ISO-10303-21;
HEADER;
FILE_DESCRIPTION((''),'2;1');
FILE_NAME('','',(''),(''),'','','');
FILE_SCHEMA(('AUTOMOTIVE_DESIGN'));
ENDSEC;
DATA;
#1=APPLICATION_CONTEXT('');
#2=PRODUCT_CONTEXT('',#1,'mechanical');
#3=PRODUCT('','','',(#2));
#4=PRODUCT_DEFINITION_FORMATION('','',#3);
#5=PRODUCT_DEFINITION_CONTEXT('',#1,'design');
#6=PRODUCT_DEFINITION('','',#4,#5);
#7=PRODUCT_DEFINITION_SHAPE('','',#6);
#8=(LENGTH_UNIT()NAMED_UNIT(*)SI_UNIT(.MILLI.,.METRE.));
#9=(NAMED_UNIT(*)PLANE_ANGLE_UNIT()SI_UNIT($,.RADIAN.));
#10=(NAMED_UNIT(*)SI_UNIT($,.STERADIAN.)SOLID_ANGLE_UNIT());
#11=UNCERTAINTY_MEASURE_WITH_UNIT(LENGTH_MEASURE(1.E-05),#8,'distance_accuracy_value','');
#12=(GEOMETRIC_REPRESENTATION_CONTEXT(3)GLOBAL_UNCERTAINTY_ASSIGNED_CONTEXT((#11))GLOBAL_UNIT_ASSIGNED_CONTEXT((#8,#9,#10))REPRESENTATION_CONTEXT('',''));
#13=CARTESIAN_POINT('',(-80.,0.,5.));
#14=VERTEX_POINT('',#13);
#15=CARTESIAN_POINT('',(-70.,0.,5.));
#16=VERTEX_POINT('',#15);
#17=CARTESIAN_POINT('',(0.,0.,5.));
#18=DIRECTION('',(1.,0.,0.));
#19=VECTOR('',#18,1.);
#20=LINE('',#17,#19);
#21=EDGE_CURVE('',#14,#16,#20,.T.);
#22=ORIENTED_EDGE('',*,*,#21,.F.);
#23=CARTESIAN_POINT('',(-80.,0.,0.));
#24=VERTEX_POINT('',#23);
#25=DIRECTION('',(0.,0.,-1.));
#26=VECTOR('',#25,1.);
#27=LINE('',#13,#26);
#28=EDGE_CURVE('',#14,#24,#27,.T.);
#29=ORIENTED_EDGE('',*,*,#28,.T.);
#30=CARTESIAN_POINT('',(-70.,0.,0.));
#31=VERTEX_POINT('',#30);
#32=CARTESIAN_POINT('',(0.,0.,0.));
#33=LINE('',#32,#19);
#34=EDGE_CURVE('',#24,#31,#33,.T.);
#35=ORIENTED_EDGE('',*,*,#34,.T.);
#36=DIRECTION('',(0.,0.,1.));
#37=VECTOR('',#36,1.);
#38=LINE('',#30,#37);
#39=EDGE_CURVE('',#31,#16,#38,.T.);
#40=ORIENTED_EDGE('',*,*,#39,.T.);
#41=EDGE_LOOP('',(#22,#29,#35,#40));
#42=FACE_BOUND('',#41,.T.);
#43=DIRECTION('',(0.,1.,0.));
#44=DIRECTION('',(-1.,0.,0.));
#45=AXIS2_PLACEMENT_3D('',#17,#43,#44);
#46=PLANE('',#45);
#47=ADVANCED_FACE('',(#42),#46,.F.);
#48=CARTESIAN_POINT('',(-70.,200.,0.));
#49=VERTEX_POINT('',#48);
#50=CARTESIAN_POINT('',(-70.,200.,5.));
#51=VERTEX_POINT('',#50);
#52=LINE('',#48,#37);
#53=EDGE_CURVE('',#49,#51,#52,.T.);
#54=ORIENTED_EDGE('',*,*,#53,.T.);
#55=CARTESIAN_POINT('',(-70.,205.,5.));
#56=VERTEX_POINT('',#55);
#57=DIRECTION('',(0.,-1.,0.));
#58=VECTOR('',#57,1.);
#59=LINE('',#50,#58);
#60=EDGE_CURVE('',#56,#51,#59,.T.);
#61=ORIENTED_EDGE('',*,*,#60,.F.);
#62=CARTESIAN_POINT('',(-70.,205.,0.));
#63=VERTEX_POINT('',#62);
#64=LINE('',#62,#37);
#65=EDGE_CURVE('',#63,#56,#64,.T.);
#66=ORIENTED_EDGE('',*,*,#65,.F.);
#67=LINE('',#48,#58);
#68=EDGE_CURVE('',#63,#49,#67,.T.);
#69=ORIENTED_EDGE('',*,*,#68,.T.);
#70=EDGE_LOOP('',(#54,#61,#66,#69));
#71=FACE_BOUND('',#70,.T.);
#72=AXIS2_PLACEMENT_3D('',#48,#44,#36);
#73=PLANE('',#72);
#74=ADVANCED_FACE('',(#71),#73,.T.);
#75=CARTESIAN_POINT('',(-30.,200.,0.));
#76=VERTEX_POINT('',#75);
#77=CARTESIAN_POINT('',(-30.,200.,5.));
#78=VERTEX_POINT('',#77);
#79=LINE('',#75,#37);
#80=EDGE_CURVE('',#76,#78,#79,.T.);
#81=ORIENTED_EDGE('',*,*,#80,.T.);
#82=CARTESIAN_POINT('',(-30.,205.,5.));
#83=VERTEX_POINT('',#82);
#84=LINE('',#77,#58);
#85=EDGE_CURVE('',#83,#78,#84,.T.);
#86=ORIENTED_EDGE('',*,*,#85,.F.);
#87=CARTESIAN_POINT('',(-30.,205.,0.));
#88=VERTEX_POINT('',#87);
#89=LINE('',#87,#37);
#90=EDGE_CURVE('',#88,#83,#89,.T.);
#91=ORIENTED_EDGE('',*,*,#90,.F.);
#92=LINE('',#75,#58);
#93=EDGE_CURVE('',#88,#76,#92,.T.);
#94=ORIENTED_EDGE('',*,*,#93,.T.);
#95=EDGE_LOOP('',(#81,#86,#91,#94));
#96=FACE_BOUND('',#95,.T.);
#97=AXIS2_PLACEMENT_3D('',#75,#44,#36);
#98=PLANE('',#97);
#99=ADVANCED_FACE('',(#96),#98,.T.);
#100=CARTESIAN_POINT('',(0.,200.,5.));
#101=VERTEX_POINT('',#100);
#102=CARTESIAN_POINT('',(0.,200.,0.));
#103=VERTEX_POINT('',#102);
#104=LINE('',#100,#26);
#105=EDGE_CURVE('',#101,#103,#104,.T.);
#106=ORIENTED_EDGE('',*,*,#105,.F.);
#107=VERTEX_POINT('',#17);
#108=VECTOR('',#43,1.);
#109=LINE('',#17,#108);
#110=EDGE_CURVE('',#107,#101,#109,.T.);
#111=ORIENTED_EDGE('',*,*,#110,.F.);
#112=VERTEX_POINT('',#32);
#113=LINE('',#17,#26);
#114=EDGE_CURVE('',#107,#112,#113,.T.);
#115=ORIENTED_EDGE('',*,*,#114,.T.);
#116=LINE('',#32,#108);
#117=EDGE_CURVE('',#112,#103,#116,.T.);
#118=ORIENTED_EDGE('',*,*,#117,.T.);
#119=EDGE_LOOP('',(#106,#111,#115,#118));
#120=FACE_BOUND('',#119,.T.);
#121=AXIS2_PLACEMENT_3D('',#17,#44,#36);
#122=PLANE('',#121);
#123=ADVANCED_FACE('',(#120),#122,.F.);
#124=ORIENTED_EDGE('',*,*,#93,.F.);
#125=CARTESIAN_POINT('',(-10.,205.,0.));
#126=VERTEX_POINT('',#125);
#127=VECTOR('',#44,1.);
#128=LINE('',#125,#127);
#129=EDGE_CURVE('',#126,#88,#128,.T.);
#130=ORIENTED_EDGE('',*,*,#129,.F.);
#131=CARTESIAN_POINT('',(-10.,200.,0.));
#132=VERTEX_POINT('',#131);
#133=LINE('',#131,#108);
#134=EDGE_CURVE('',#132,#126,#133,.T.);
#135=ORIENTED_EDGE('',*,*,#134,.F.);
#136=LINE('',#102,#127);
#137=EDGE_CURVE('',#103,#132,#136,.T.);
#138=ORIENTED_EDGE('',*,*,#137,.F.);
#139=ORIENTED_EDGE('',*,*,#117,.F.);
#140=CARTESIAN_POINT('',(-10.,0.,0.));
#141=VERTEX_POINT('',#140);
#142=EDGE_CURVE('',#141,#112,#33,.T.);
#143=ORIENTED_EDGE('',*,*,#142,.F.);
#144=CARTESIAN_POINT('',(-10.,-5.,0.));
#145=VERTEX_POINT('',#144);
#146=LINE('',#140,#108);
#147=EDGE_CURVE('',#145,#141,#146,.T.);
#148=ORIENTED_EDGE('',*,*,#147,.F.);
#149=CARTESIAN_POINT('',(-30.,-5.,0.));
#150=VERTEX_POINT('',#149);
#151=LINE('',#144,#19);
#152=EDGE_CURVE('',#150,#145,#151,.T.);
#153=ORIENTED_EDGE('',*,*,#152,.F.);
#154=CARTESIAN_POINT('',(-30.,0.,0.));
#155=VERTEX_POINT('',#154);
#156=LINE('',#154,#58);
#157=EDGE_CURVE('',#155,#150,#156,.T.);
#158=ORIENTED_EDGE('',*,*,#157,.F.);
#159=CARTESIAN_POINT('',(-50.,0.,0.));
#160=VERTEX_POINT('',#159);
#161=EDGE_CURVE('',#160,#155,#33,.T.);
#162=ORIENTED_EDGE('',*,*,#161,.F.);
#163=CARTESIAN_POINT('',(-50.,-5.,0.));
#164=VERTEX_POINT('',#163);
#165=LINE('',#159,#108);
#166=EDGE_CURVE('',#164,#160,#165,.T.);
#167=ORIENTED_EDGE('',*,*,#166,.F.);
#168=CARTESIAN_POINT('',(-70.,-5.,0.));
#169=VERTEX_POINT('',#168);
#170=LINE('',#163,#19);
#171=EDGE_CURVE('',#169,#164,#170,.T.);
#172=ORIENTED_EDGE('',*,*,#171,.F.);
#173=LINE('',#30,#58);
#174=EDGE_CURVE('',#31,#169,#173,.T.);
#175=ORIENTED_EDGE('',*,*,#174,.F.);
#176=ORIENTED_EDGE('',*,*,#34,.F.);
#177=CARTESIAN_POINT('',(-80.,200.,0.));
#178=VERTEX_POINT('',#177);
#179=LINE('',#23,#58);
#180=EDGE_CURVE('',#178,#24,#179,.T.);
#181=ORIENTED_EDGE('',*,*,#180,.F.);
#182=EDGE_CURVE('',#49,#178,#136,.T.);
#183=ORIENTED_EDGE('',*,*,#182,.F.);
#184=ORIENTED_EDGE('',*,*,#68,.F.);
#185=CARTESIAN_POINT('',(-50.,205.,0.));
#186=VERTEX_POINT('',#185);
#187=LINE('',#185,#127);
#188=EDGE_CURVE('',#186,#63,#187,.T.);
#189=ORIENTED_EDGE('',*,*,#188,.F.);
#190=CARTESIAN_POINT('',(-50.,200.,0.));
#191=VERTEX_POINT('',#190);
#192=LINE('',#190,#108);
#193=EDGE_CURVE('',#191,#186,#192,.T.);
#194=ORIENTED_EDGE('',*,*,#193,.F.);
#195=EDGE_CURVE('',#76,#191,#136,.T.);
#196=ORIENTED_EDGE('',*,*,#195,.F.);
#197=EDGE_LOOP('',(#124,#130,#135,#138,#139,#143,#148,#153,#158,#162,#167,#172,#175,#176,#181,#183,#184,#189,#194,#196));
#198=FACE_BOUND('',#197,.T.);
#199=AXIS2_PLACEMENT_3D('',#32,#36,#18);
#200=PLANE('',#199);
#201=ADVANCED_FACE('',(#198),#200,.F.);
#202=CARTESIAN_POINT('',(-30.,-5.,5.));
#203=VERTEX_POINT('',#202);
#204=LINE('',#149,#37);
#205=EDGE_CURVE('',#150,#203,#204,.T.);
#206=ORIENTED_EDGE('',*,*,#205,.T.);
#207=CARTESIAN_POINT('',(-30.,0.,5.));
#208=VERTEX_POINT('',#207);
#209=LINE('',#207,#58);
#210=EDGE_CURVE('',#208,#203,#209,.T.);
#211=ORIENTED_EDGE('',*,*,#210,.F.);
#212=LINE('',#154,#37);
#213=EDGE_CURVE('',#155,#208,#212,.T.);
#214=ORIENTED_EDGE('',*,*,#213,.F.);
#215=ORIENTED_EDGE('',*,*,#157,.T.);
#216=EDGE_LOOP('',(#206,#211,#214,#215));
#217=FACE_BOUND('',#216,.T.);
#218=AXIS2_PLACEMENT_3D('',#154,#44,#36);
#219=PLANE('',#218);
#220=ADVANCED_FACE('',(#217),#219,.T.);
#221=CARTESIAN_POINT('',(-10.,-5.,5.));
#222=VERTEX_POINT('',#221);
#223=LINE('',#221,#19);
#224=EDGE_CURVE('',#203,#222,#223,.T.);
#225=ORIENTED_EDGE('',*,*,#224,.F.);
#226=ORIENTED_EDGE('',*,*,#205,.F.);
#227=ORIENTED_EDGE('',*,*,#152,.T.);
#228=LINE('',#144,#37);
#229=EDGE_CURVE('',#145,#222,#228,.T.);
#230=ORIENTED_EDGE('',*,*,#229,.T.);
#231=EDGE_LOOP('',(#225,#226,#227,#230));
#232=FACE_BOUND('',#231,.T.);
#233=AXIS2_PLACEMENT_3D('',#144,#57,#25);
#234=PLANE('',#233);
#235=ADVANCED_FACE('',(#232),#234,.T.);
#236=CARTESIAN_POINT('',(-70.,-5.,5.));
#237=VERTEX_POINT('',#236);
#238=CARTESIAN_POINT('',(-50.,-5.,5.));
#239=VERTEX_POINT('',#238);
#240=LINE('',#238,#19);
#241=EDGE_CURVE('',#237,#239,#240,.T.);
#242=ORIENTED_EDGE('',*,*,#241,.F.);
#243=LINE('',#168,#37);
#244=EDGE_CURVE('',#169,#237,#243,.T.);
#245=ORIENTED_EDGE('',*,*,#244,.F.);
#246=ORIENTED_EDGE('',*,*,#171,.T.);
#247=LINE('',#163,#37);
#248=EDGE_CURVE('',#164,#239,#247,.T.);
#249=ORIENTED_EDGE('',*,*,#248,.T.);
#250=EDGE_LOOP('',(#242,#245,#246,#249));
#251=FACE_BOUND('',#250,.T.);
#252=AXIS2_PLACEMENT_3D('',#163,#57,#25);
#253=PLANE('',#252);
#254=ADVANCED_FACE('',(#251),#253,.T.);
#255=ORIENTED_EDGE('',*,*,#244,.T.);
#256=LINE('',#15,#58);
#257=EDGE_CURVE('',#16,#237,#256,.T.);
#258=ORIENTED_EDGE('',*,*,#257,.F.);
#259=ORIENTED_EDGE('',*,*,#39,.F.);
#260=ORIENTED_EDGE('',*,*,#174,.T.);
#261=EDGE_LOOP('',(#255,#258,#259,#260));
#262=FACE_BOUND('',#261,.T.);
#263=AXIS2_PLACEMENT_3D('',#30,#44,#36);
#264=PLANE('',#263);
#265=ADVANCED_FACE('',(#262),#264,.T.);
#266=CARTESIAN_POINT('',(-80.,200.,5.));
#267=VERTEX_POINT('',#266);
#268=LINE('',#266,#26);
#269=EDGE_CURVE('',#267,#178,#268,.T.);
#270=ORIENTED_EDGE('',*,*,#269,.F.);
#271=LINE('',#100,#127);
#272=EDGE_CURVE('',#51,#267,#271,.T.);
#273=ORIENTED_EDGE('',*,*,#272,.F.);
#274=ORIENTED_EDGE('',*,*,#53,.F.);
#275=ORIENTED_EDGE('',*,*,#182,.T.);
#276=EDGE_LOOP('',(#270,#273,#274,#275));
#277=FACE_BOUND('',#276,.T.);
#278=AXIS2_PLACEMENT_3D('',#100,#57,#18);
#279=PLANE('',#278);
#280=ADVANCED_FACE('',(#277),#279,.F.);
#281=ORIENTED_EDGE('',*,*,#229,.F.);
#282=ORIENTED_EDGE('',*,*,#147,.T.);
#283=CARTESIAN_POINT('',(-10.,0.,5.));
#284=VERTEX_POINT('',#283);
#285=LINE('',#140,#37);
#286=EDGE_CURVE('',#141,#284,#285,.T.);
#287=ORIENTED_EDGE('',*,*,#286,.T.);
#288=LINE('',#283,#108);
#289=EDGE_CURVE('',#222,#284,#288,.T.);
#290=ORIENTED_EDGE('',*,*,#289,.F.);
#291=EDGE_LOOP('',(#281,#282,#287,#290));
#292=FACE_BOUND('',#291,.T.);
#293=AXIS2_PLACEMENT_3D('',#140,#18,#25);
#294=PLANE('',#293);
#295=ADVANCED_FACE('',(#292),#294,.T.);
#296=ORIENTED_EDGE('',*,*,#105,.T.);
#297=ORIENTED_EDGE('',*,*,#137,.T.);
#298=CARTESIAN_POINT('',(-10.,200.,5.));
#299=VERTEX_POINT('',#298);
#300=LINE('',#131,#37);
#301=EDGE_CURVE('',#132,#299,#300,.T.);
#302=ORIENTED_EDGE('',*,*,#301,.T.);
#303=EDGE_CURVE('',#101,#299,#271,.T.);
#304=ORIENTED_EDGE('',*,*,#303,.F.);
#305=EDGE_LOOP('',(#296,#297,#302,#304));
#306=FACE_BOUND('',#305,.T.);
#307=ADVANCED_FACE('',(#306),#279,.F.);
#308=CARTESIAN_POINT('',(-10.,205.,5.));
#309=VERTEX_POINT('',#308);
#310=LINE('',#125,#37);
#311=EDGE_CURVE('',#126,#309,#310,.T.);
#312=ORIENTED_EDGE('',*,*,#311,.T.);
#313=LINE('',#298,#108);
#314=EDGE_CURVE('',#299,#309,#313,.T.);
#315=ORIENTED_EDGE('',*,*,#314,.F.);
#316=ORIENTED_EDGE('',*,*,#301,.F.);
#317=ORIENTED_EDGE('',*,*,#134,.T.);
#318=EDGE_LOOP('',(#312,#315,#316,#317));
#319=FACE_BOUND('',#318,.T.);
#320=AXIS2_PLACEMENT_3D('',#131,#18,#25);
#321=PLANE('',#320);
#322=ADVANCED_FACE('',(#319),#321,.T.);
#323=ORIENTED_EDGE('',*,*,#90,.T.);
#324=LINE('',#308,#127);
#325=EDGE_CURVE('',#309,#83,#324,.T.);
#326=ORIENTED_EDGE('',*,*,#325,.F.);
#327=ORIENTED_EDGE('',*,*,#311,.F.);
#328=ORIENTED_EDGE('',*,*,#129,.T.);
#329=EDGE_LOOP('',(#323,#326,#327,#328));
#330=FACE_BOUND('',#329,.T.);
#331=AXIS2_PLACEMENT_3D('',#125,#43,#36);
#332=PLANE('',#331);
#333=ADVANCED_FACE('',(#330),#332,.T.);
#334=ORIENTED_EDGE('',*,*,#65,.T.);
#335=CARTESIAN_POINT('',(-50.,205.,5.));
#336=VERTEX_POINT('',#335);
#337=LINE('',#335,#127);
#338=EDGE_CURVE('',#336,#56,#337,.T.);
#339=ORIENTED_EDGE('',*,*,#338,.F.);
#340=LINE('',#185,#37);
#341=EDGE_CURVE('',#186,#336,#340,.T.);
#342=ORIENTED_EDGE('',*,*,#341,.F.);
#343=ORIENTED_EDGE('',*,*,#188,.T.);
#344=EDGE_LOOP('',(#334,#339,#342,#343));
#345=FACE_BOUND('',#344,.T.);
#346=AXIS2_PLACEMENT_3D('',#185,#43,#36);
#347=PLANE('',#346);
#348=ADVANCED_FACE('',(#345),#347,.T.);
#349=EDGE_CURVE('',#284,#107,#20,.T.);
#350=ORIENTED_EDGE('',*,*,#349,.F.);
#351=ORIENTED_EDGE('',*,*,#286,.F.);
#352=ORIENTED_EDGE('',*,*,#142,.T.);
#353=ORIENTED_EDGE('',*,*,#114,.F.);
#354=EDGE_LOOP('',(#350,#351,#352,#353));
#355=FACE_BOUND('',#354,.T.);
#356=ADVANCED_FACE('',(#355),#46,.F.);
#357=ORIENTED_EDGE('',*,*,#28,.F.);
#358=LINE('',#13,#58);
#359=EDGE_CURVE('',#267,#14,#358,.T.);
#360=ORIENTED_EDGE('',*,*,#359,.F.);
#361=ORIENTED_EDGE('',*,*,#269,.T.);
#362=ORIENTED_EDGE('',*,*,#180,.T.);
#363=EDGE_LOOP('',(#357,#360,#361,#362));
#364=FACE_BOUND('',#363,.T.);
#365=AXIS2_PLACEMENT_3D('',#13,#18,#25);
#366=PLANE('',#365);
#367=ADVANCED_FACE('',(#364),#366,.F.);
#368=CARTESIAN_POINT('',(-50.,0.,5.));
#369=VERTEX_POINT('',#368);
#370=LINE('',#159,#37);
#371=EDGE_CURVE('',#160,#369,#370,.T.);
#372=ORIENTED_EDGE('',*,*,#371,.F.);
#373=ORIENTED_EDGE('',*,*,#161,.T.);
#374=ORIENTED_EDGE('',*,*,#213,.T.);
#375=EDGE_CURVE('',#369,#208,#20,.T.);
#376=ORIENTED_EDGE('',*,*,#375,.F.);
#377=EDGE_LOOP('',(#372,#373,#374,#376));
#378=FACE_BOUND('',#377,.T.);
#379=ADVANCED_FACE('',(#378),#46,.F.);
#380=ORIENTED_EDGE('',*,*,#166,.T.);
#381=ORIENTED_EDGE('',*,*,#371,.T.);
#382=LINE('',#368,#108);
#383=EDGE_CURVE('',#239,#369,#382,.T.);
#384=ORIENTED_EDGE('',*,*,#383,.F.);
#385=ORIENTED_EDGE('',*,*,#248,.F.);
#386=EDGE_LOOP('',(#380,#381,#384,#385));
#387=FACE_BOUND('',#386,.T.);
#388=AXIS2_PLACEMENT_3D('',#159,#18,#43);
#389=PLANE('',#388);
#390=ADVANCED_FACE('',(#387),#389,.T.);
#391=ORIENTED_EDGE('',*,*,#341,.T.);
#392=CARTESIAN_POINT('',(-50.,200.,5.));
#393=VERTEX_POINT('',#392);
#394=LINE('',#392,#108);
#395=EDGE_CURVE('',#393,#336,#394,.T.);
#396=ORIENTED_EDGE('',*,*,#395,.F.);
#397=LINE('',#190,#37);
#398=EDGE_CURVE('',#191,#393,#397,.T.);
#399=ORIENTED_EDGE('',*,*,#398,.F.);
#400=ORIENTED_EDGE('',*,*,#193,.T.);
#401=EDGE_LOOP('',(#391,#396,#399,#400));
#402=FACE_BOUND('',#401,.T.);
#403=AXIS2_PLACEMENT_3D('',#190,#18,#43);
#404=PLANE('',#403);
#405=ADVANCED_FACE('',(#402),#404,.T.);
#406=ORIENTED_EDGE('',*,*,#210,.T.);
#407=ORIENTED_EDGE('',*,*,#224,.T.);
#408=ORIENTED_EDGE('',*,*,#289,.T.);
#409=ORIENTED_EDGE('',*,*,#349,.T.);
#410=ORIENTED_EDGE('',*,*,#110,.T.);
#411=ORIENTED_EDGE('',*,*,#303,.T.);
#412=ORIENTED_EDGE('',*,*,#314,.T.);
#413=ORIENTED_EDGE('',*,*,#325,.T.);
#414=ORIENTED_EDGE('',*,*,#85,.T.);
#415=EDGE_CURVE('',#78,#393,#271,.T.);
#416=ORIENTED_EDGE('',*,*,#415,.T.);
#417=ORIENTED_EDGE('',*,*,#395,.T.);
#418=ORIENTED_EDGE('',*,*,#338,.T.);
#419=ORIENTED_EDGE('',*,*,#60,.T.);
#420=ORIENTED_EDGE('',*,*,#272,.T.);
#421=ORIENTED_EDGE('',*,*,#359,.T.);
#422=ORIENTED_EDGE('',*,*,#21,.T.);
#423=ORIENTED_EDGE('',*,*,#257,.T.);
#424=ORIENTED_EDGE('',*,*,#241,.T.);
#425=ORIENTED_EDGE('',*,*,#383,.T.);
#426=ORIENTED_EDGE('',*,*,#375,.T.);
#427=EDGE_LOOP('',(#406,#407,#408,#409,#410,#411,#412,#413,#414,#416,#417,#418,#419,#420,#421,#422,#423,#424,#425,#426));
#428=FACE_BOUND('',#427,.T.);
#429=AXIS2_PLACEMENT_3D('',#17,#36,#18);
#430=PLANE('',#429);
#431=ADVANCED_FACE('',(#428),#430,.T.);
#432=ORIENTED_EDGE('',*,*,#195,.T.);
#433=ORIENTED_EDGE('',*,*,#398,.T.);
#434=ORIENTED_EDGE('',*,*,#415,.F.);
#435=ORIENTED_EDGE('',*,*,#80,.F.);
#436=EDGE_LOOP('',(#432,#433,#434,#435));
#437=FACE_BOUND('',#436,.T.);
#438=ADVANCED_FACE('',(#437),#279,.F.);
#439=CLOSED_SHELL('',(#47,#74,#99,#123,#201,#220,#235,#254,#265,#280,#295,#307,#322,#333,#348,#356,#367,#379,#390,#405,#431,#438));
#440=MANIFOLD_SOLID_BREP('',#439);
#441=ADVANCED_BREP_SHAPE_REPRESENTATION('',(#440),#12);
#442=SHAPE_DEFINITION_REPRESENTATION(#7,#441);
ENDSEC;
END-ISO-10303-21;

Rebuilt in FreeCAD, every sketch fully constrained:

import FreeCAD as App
import Part
import Sketcher
from FreeCAD import Vector
Q = App.Units.Quantity


def add_polygon(sketch, points):
    """Adds a closed chain of lines whose ends are joined by coincident constraints."""
    first, n = sketch.GeometryCount, len(points)
    for a, b in zip(points, points[1:] + points[:1]):
        sketch.addGeometry(Part.LineSegment(App.Vector(*a, 0), App.Vector(*b, 0)), False)
    for i in range(n):
        sketch.addConstraint(Sketcher.Constraint("Coincident", first + i, 2, first + (i + 1) % n, 1))

doc = App.newDocument("Part")
body = doc.addObject("PartDesign::Body", "Body")

# Sketch on XY plane
sketch1 = body.newObject("Sketcher::SketchObject", "Sketch")
sketch1.AttachmentSupport = (doc.getObject("XY_Plane"), [""])
sketch1.MapMode = "FlatFace"
add_polygon(sketch1, [(-80, 200), (-80, 0), (0, 0), (0, 200)])  # lines 0-3
sketch1.addConstraint([
    Sketcher.Constraint("Vertical", 0),
    Sketcher.Constraint("Horizontal", 1),
    Sketcher.Constraint("Vertical", 2),
    Sketcher.Constraint("Horizontal", 3),
    Sketcher.Constraint("Coincident", 1, 2, -1, 1),
    Sketcher.Constraint("DistanceX", 1, 1, 1, 2, Q("80 mm")),
    Sketcher.Constraint("DistanceY", 0, 2, 0, 1, Q("200 mm")),
])
pad1 = body.newObject("PartDesign::Pad", "Pad")
pad1.Profile = sketch1
pad1.Length = 5

# Sketch on XY plane
sketch2 = body.newObject("Sketcher::SketchObject", "Sketch001")
sketch2.AttachmentSupport = (doc.getObject("XY_Plane"), [""])
sketch2.MapMode = "FlatFace"
sketch2.AttachmentOffset = App.Placement(Vector(0, 0, 5), App.Rotation())
add_polygon(sketch2, [(-30, 205), (-30, 200), (-10, 200), (-10, 205)])  # lines 0-3
add_polygon(sketch2, [(-70, 205), (-70, 200), (-50, 200), (-50, 205)])  # lines 4-7
add_polygon(sketch2, [(-70, 0), (-70, -5), (-50, -5), (-50, 0)])  # lines 8-11
add_polygon(sketch2, [(-30, 0), (-30, -5), (-10, -5), (-10, 0)])  # lines 12-15
sketch2.addConstraint([
    Sketcher.Constraint("Vertical", 0),
    Sketcher.Constraint("Horizontal", 1),
    Sketcher.Constraint("Vertical", 2),
    Sketcher.Constraint("Horizontal", 3),
    Sketcher.Constraint("Vertical", 4),
    Sketcher.Constraint("Horizontal", 5),
    Sketcher.Constraint("Vertical", 6),
    Sketcher.Constraint("Horizontal", 7),
    Sketcher.Constraint("Vertical", 8),
    Sketcher.Constraint("Horizontal", 9),
    Sketcher.Constraint("Vertical", 10),
    Sketcher.Constraint("Horizontal", 11),
    Sketcher.Constraint("Vertical", 12),
    Sketcher.Constraint("Horizontal", 13),
    Sketcher.Constraint("Vertical", 14),
    Sketcher.Constraint("Horizontal", 15),
    Sketcher.Constraint("PointOnObject", 10, 2, -1),
    Sketcher.Constraint("PointOnObject", 14, 2, -1),
    Sketcher.Constraint("Horizontal", 1, 2, 4, 2),
    Sketcher.Constraint("Horizontal", 3, 2, 6, 2),
    Sketcher.Constraint("Horizontal", 9, 2, 12, 2),
    Sketcher.Constraint("Vertical", 7, 2, 8, 2),
    Sketcher.Constraint("Vertical", 6, 2, 9, 2),
    Sketcher.Constraint("Vertical", 3, 2, 12, 2),
    Sketcher.Constraint("Vertical", 2, 2, 13, 2),
    Sketcher.Constraint("Equal", 3, 5),
    Sketcher.Constraint("Equal", 6, 8),
    Sketcher.Constraint("DistanceX", 1, 1, 1, 2, Q("20 mm")),
    Sketcher.Constraint("DistanceY", 0, 2, 0, 1, Q("5 mm")),
    Sketcher.Constraint("DistanceX", 0, 2, -1, 1, Q("30 mm")),
    Sketcher.Constraint("DistanceY", -1, 1, 0, 2, Q("200 mm")),
    Sketcher.Constraint("DistanceX", 4, 2, -1, 1, Q("70 mm")),
])
pad2 = body.newObject("PartDesign::Pad", "Pad001")
pad2.Profile = sketch2
pad2.Length = 5
pad2.Reversed = True

doc.recompute()
